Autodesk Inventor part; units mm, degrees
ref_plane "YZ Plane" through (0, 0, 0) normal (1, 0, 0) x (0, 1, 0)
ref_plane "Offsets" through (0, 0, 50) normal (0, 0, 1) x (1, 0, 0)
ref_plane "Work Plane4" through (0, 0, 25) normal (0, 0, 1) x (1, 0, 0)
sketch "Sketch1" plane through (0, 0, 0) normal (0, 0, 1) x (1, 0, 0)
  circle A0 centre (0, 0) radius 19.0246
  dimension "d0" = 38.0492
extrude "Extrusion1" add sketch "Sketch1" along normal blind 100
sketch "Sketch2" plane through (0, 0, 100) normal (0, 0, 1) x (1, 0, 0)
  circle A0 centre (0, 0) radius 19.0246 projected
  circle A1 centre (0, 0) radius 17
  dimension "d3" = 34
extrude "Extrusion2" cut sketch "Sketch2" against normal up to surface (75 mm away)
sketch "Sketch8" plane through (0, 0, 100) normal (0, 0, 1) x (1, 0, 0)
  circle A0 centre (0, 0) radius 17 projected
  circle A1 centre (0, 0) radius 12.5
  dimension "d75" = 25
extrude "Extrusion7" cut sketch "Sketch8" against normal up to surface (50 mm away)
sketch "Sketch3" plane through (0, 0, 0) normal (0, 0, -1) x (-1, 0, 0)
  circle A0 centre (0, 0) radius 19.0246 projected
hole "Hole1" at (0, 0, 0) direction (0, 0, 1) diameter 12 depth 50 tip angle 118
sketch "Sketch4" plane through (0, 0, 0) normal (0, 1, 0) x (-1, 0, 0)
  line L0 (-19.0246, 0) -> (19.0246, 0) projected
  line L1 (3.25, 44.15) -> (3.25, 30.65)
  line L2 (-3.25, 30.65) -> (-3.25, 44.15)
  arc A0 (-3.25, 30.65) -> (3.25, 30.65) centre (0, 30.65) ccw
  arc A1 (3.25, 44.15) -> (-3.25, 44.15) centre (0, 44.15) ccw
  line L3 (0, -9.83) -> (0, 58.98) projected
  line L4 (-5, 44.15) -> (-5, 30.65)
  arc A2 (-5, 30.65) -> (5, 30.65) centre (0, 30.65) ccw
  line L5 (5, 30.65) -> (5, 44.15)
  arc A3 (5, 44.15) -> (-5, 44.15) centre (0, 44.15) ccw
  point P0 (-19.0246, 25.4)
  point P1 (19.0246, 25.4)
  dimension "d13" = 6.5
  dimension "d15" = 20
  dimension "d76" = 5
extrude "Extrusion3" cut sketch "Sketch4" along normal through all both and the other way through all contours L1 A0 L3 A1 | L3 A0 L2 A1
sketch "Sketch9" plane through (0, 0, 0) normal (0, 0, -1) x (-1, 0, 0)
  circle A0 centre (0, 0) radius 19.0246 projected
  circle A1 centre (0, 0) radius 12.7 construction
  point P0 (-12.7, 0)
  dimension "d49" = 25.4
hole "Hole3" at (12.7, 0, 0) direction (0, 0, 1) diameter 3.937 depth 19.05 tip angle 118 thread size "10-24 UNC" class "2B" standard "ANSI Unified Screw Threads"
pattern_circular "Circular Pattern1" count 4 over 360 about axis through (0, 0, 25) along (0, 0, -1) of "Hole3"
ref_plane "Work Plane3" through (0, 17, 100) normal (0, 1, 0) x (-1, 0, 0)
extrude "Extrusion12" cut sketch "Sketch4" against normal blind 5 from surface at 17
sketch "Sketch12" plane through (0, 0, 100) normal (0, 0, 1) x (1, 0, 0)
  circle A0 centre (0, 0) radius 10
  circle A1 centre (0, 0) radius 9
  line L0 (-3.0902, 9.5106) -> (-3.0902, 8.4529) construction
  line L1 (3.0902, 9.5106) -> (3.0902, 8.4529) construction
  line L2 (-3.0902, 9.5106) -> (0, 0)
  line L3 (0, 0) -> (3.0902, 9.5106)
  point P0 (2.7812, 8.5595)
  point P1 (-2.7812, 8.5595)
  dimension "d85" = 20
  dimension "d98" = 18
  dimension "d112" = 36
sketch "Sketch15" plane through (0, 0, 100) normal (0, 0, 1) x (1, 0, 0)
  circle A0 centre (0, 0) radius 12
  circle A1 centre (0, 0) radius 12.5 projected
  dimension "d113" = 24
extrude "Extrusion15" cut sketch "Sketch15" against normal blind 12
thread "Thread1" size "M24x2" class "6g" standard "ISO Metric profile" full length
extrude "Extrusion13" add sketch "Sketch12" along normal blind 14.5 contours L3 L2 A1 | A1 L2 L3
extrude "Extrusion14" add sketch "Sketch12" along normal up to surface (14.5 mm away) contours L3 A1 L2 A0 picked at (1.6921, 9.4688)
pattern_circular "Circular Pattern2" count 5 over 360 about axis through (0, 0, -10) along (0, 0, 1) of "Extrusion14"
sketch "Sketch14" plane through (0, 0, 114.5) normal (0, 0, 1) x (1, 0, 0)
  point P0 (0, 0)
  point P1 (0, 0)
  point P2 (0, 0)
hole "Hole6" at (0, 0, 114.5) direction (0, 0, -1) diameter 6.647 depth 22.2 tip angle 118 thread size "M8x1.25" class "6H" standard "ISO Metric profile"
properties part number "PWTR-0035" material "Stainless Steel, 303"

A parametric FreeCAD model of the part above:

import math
import FreeCAD as App
import Part
import Sketcher
from FreeCAD import Vector
Q = App.Units.Quantity

doc = App.newDocument("Part")
body = doc.addObject("PartDesign::Body", "Body")

sketch1 = body.newObject("Sketcher::SketchObject", "Sketch")
sketch1.AttachmentSupport = (doc.getObject("XY_Plane"), [""])
sketch1.MapMode = "FlatFace"
sketch1.addGeometry(Part.Circle(Vector(0, 0, 0), Vector(0, 0, 1), 19), False)
sketch1.addConstraint([
    Sketcher.Constraint("Coincident", 0, 3, -1, 1),
    Sketcher.Constraint("Diameter", 0, Q("38.0492 mm")),
])
pad1 = body.newObject("PartDesign::Pad", "Pad")
pad1.Profile = sketch1
pad1.Length = 100

sketch2 = body.newObject("Sketcher::SketchObject", "Sketch001")
sketch2.AttachmentSupport = (doc.getObject("XY_Plane"), [""])
sketch2.MapMode = "FlatFace"
sketch2.AttachmentOffset = App.Placement(Vector(0, 0, 100), App.Rotation())
sketch2.addGeometry([
    Part.Circle(Vector(0, 0, 0), Vector(0, 0, 1), 19),
    Part.Circle(Vector(0, 0, 0), Vector(0, 0, 1), 17),
], False)
sketch2.addConstraint([
    Sketcher.Constraint("Coincident", 0, 3, -1, 1),
    Sketcher.Constraint("Coincident", 1, 3, -1, 1),
    Sketcher.Constraint("Diameter", 1, Q("34 mm")),
    Sketcher.Constraint("Diameter", 0, Q("38.0492 mm")),
])
pocket1 = body.newObject("PartDesign::Pocket", "Pocket")
pocket1.Profile = sketch2
pocket1.Length = 75

sketch3 = body.newObject("Sketcher::SketchObject", "Sketch002")
sketch3.AttachmentSupport = (doc.getObject("XY_Plane"), [""])
sketch3.MapMode = "FlatFace"
sketch3.AttachmentOffset = App.Placement(Vector(0, 0, 100), App.Rotation())
sketch3.addGeometry([
    Part.Circle(Vector(0, 0, 0), Vector(0, 0, 1), 17),
    Part.Circle(Vector(0, 0, 0), Vector(0, 0, 1), 12),
], False)
sketch3.addConstraint([
    Sketcher.Constraint("Coincident", 0, 3, -1, 1),
    Sketcher.Constraint("Coincident", 1, 3, -1, 1),
    Sketcher.Constraint("Diameter", 1, Q("25 mm")),
    Sketcher.Constraint("Diameter", 0, Q("34 mm")),
])
pocket2 = body.newObject("PartDesign::Pocket", "Pocket001")
pocket2.Profile = sketch3
pocket2.Length = 50

sketch4 = body.newObject("Sketcher::SketchObject", "Sketch003")
sketch4.AttachmentSupport = (doc.getObject("XY_Plane"), [""])
sketch4.MapMode = "FlatFace"
sketch4.addGeometry(Part.Circle(Vector(0, 0, 0), Vector(0, 0, 1), 6), False)
sketch4.addConstraint([
    Sketcher.Constraint("Coincident", 0, 3, -1, 1),
    Sketcher.Constraint("Diameter", 0, Q("12 mm")),
])
doc.recompute()
hole = body.newObject("PartDesign::Hole", "Hole")
hole.Profile = sketch4
hole.ThreadType = "None"
hole.Diameter = 12
hole.DepthType = "Dimension"
hole.Depth = 50
hole.DrillPoint = "Angled"
hole.DrillPointAngle = 118
hole.Reversed = True

sketch5 = body.newObject("Sketcher::SketchObject", "Sketch004")
sketch5.AttachmentSupport = (doc.getObject("XZ_Plane"), [""])
sketch5.MapMode = "FlatFace"
sketch5.addGeometry([
    Part.LineSegment(Vector(-3.2, 30.6, 0), Vector(-3.2, 44.1, 0)),
    Part.ArcOfCircle(Part.Circle(Vector(0, 44.1, 0), Vector(0, 0, 1), 3.2), math.radians(0), math.radians(180)),
    Part.LineSegment(Vector(3.2, 44.1, 0), Vector(3.2, 30.6, 0)),
    Part.ArcOfCircle(Part.Circle(Vector(0, 30.6, 0), Vector(0, 0, 1), 3.2), math.radians(180), math.radians(360)),
], False)
sketch5.addConstraint([
    Sketcher.Constraint("Tangent", 0, 2, 1, 2),
    Sketcher.Constraint("Tangent", 1, 1, 2, 1),
    Sketcher.Constraint("Tangent", 2, 2, 3, 2),
    Sketcher.Constraint("Tangent", 3, 1, 0, 1),
    Sketcher.Constraint("Vertical", 0),
    Sketcher.Constraint("Vertical", 2),
    Sketcher.Constraint("PointOnObject", 1, 3, -2),
    Sketcher.Constraint("Radius", 1, Q("3.25 mm")),
    Sketcher.Constraint("DistanceY", 0, 1, 0, 2, Q("13.5 mm")),
    Sketcher.Constraint("DistanceY", -1, 1, 1, 3, Q("44.15 mm")),
])
pocket3 = body.newObject("PartDesign::Pocket", "Pocket002")
pocket3.Profile = sketch5
pocket3.Type = "ThroughAll"
pocket3.Midplane = True

sketch6 = body.newObject("Sketcher::SketchObject", "Sketch005")
sketch6.AttachmentSupport = (doc.getObject("XY_Plane"), [""])
sketch6.MapMode = "FlatFace"
sketch6.addGeometry(Part.Circle(Vector(12.7, 0, 0), Vector(0, 0, 1), 2), False)
sketch6.addConstraint([
    Sketcher.Constraint("PointOnObject", 0, 3, -1),
    Sketcher.Constraint("Diameter", 0, Q("3.937 mm")),
    Sketcher.Constraint("DistanceX", -1, 1, 0, 3, Q("12.7 mm")),
])
doc.recompute()
hole2 = body.newObject("PartDesign::Hole", "Hole001")
hole2.Profile = sketch6
hole2.ThreadType = "None"
hole2.Diameter = 3.937
hole2.DepthType = "Dimension"
hole2.Depth = 19.05
hole2.DrillPoint = "Angled"
hole2.DrillPointAngle = 118
hole2.Reversed = True
doc.recompute()

polarpattern = body.newObject("PartDesign::PolarPattern", "PolarPattern")
polarpattern.Originals = [hole2]
polarpattern.Axis = (doc.getObject("Z_Axis"), [""])
polarpattern.Angle = 360
polarpattern.Occurrences = 4
body.Tip = polarpattern

sketch7 = body.newObject("Sketcher::SketchObject", "Sketch006")
sketch7.AttachmentSupport = (doc.getObject("XZ_Plane"), [""])
sketch7.MapMode = "FlatFace"
sketch7.AttachmentOffset = App.Placement(Vector(0, 0, -17), App.Rotation())
sketch7.addGeometry([
    Part.ArcOfCircle(Part.Circle(Vector(0, 44, 0), Vector(0, 0, 1), 5), math.radians(0), math.radians(180)),
    Part.LineSegment(Vector(5, 44, 0), Vector(5, 31, 0)),
    Part.ArcOfCircle(Part.Circle(Vector(0, 31, 0), Vector(0, 0, 1), 5), math.radians(180), math.radians(360)),
    Part.LineSegment(Vector(-5, 31, 0), Vector(-5, 44, 0)),
], False)
sketch7.addConstraint([
    Sketcher.Constraint("Tangent", 0, 1, 1, 1),
    Sketcher.Constraint("Tangent", 1, 2, 2, 2),
    Sketcher.Constraint("Tangent", 2, 1, 3, 1),
    Sketcher.Constraint("Tangent", 3, 2, 0, 2),
    Sketcher.Constraint("Vertical", 1),
    Sketcher.Constraint("Vertical", 3),
    Sketcher.Constraint("PointOnObject", 0, 3, -2),
    Sketcher.Constraint("Radius", 0, Q("5 mm")),
    Sketcher.Constraint("DistanceY", 1, 2, 1, 1, Q("13.5 mm")),
    Sketcher.Constraint("DistanceY", -1, 1, 0, 3, Q("44.15 mm")),
])
pocket4 = body.newObject("PartDesign::Pocket", "Pocket003")
pocket4.Profile = sketch7
pocket4.Length = 5
pocket4.Reversed = True

sketch8 = body.newObject("Sketcher::SketchObject", "Sketch007")
sketch8.AttachmentSupport = (doc.getObject("XY_Plane"), [""])
sketch8.MapMode = "FlatFace"
sketch8.AttachmentOffset = App.Placement(Vector(0, 0, 100), App.Rotation())
sketch8.addGeometry([
    Part.Circle(Vector(0, 0, 0), Vector(0, 0, 1), 12),
    Part.Circle(Vector(0, 0, 0), Vector(0, 0, 1), 12),
], False)
sketch8.addConstraint([
    Sketcher.Constraint("Coincident", 0, 3, -1, 1),
    Sketcher.Constraint("Coincident", 1, 3, -1, 1),
    Sketcher.Constraint("Diameter", 1, Q("24 mm")),
    Sketcher.Constraint("Diameter", 0, Q("25 mm")),
])
pocket5 = body.newObject("PartDesign::Pocket", "Pocket004")
pocket5.Profile = sketch8
pocket5.Length = 12

sketch9 = body.newObject("Sketcher::SketchObject", "Sketch008")
sketch9.AttachmentSupport = (doc.getObject("XY_Plane"), [""])
sketch9.MapMode = "FlatFace"
sketch9.AttachmentOffset = App.Placement(Vector(0, 0, 100), App.Rotation())
sketch9.addGeometry(Part.Circle(Vector(0, 0, 0), Vector(0, 0, 1), 9), False)
sketch9.addConstraint([
    Sketcher.Constraint("Coincident", 0, 3, -1, 1),
    Sketcher.Constraint("Diameter", 0, Q("18 mm")),
])
pad2 = body.newObject("PartDesign::Pad", "Pad001")
pad2.Profile = sketch9
pad2.Length = 14.5

sketch10 = body.newObject("Sketcher::SketchObject", "Sketch009")
sketch10.AttachmentSupport = (doc.getObject("XY_Plane"), [""])
sketch10.MapMode = "FlatFace"
sketch10.AttachmentOffset = App.Placement(Vector(0, 0, 100), App.Rotation())
sketch10.addGeometry([
    Part.LineSegment(Vector(2.8, 8.6, 0), Vector(3.1, 9.5, 0)),
    Part.ArcOfCircle(Part.Circle(Vector(0, 0, 0), Vector(0, 0, 1), 10), math.radians(72), math.radians(108)),
    Part.LineSegment(Vector(-3.1, 9.5, 0), Vector(-2.8, 8.6, 0)),
    Part.ArcOfCircle(Part.Circle(Vector(0, 0, 0), Vector(0, 0, 1), 9), math.radians(72), math.radians(108)),
], False)
sketch10.addConstraint([
    Sketcher.Constraint("Coincident", 0, 2, 1, 1),
    Sketcher.Constraint("Coincident", 1, 2, 2, 1),
    Sketcher.Constraint("Coincident", 2, 2, 3, 2),
    Sketcher.Constraint("Coincident", 3, 1, 0, 1),
    Sketcher.Constraint("Coincident", 1, 3, -1, 1),
    Sketcher.Constraint("Coincident", 3, 3, -1, 1),
    Sketcher.Constraint("Horizontal", 0, 2, 1, 2),
    Sketcher.Constraint("Horizontal", 2, 2, 3, 1),
    Sketcher.Constraint("Radius", 1, Q("10 mm")),
    Sketcher.Constraint("Radius", 3, Q("9 mm")),
    Sketcher.Constraint("Angle", 0, Q("72 deg")),
    Sketcher.Constraint("DistanceX", -1, 1, 0, 2, Q("3.0902 mm")),
])
pad3 = body.newObject("PartDesign::Pad", "Pad002")
pad3.Profile = sketch10
pad3.Length = 14.5
doc.recompute()

polarpattern2 = body.newObject("PartDesign::PolarPattern", "PolarPattern001")
polarpattern2.Originals = [pad3]
polarpattern2.Axis = (doc.getObject("Z_Axis"), [""])
polarpattern2.Angle = 360
polarpattern2.Occurrences = 5
body.Tip = polarpattern2

sketch11 = body.newObject("Sketcher::SketchObject", "Sketch010")
sketch11.AttachmentSupport = (doc.getObject("XY_Plane"), [""])
sketch11.MapMode = "FlatFace"
sketch11.AttachmentOffset = App.Placement(Vector(0, 0, 114.5), App.Rotation())
sketch11.addGeometry(Part.Circle(Vector(0, 0, 0), Vector(0, 0, 1), 3.3), False)
sketch11.addConstraint([
    Sketcher.Constraint("Coincident", 0, 3, -1, 1),
    Sketcher.Constraint("Diameter", 0, Q("6.647 mm")),
])
doc.recompute()
hole3 = body.newObject("PartDesign::Hole", "Hole002")
hole3.Profile = sketch11
hole3.ThreadType = "None"
hole3.Diameter = 6.647
hole3.DepthType = "Dimension"
hole3.Depth = 22.2
hole3.DrillPoint = "Angled"
hole3.DrillPointAngle = 118

doc.recompute()
